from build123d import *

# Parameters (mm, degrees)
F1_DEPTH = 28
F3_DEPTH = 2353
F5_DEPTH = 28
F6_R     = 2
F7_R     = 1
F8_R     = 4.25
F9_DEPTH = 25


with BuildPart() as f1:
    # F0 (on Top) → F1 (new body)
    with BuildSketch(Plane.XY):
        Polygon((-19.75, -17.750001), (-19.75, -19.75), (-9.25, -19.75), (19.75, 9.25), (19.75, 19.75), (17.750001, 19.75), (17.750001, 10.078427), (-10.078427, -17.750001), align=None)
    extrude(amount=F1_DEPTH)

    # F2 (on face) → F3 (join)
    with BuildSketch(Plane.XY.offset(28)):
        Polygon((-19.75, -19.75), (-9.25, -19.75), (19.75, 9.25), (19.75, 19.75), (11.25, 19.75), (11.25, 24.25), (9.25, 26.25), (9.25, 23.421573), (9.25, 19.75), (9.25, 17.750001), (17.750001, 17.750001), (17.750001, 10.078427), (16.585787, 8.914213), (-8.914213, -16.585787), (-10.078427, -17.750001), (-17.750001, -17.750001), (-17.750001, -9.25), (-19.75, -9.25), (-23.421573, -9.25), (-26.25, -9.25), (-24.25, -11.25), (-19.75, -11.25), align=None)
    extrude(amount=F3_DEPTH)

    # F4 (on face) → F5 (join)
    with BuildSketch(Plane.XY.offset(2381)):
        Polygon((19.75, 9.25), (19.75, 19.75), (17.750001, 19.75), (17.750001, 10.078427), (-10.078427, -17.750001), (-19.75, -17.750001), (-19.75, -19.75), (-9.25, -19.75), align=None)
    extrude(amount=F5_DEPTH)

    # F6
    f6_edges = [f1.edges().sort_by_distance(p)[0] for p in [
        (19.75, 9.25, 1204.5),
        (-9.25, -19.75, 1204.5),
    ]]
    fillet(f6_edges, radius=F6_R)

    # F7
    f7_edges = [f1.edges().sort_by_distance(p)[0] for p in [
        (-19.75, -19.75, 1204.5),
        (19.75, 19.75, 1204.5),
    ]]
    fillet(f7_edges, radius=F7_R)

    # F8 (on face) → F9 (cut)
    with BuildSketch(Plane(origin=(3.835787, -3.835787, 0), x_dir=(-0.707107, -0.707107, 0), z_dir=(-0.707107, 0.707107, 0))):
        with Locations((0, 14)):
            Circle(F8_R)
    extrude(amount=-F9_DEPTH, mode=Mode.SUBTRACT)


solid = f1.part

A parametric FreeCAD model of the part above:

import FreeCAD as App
import Part
import Sketcher

V = App.Vector
Q = App.Units.Quantity


def edges_at(feature, points):
    """Names of the edges that pass closest to the given points."""
    edges = feature.Shape.Edges
    near = lambda p: min(range(len(edges)), key=lambda i: edges[i].distToShape(Part.Vertex(*p))[0])
    return sorted({f"Edge{near(p) + 1}" for p in points})

doc = App.newDocument("Part")
params = doc.addObject("Spreadsheet::Sheet", "Params")
for row, (alias, value) in enumerate([
    ("sketch1_width", "1.999999 mm"),
    ("sketch1_width2", "10.5 mm"),
    ("pad1_length", "28 mm"),
    ("sketch2_width", "10.5 mm"),
    ("sketch2_width2", "8.5 mm"),
    ("sketch2_width3", "4.5 mm"),
    ("pad2_length", "2353 mm"),
    ("sketch3_width", "1.999999 mm"),
    ("sketch3_width2", "10.5 mm"),
    ("pad3_length", "28 mm"),
    ("fillet_radius", "2 mm"),
    ("fillet2_radius", "1 mm"),
    ("sketch4_diameter", "8.5 mm"),
    ("pocket1_length", "25 mm"),
], start=1):
    params.set(f"A{row}", alias)
    params.set(f"B{row}", "=" + value)
    params.setAlias(f"B{row}", alias)

body = doc.addObject("PartDesign::Body", "Body")

# Sketch on XY plane
sketch1 = doc.addObject("Sketcher::SketchObject", "Sketch")
body.addObject(sketch1)
sketch1.AttachmentSupport = (doc.XY_Plane, [""])
sketch1.MapMode = "FlatFace"
sketch1.addGeometry(Part.LineSegment(V(-19.8, -17.8, 0), V(-19.8, -19.8, 0)), False)
sketch1.addGeometry(Part.LineSegment(V(-19.8, -19.8, 0), V(-9.2, -19.8, 0)), False)
sketch1.addGeometry(Part.LineSegment(V(-9.2, -19.8, 0), V(19.8, 9.2, 0)), False)
sketch1.addGeometry(Part.LineSegment(V(19.8, 9.2, 0), V(19.8, 19.8, 0)), False)
sketch1.addGeometry(Part.LineSegment(V(19.8, 19.8, 0), V(17.8, 19.8, 0)), False)
sketch1.addGeometry(Part.LineSegment(V(17.8, 19.8, 0), V(17.8, 10.1, 0)), False)
sketch1.addGeometry(Part.LineSegment(V(17.8, 10.1, 0), V(-10.1, -17.8, 0)), False)
sketch1.addGeometry(Part.LineSegment(V(-10.1, -17.8, 0), V(-19.8, -17.8, 0)), False)
sketch1.addConstraint(Sketcher.Constraint("Coincident", 0, 2, 1, 1))
sketch1.addConstraint(Sketcher.Constraint("Coincident", 1, 2, 2, 1))
sketch1.addConstraint(Sketcher.Constraint("Coincident", 2, 2, 3, 1))
sketch1.addConstraint(Sketcher.Constraint("Coincident", 3, 2, 4, 1))
sketch1.addConstraint(Sketcher.Constraint("Coincident", 4, 2, 5, 1))
sketch1.addConstraint(Sketcher.Constraint("Coincident", 5, 2, 6, 1))
sketch1.addConstraint(Sketcher.Constraint("Coincident", 6, 2, 7, 1))
sketch1.addConstraint(Sketcher.Constraint("Coincident", 7, 2, 0, 1))
sketch1.addConstraint(Sketcher.Constraint("Vertical", 0))
sketch1.addConstraint(Sketcher.Constraint("Horizontal", 1))
sketch1.addConstraint(Sketcher.Constraint("Vertical", 3))
sketch1.addConstraint(Sketcher.Constraint("Horizontal", 4))
sketch1.addConstraint(Sketcher.Constraint("Vertical", 5))
sketch1.addConstraint(Sketcher.Constraint("Horizontal", 7))
sketch1.addConstraint(Sketcher.Constraint("Symmetric", 0, 2, 3, 2, -1, 1))
sketch1.addConstraint(Sketcher.Constraint("Parallel", 2, 6))
sketch1.addConstraint(Sketcher.Constraint("Equal", 4, 0))
sketch1.addConstraint(Sketcher.Constraint("Equal", 1, 3))
sketch1.addConstraint(Sketcher.Constraint("Equal", 7, 5))
sketch1.addConstraint(Sketcher.Constraint("DistanceX", 4, 2, 4, 1, Q("1.999999 mm")))
sketch1.addConstraint(Sketcher.Constraint("DistanceX", 1, 1, 1, 2, Q("10.5 mm")))
sketch1.addConstraint(Sketcher.Constraint("DistanceX", 1, 2, 2, 2, Q("29 mm")))
sketch1.addConstraint(Sketcher.Constraint("Distance", 6, Q("39.35534 mm")))
sketch1.setExpression("Constraints[19]", "Params.sketch1_width")
sketch1.setExpression("Constraints[20]", "Params.sketch1_width2")
pad1 = doc.addObject("PartDesign::Pad", "Pad")
body.addObject(pad1)
pad1.Profile = sketch1
pad1.setExpression("Length", "Params.pad1_length")

# Sketch on XY plane
sketch2 = doc.addObject("Sketcher::SketchObject", "Sketch001")
body.addObject(sketch2)
sketch2.AttachmentSupport = (doc.XY_Plane, [""])
sketch2.MapMode = "FlatFace"
sketch2.AttachmentOffset = App.Placement(V(0, 0, 28), App.Rotation())
sketch2.addGeometry(Part.LineSegment(V(-19.8, -19.8, 0), V(-9.2, -19.8, 0)), False)
sketch2.addGeometry(Part.LineSegment(V(-9.2, -19.8, 0), V(19.8, 9.2, 0)), False)
sketch2.addGeometry(Part.LineSegment(V(19.8, 9.2, 0), V(19.8, 19.8, 0)), False)
sketch2.addGeometry(Part.LineSegment(V(19.8, 19.8, 0), V(11.2, 19.8, 0)), False)
sketch2.addGeometry(Part.LineSegment(V(11.2, 19.8, 0), V(11.2, 24.2, 0)), False)
sketch2.addGeometry(Part.LineSegment(V(11.2, 24.2, 0), V(9.2, 26.2, 0)), False)
sketch2.addGeometry(Part.LineSegment(V(9.2, 26.2, 0), V(9.2, 17.8, 0)), False)
sketch2.addGeometry(Part.LineSegment(V(9.2, 17.8, 0), V(17.8, 17.8, 0)), False)
sketch2.addGeometry(Part.LineSegment(V(17.8, 17.8, 0), V(17.8, 10.1, 0)), False)
sketch2.addGeometry(Part.LineSegment(V(17.8, 10.1, 0), V(-10.1, -17.8, 0)), False)
sketch2.addGeometry(Part.LineSegment(V(-10.1, -17.8, 0), V(-17.8, -17.8, 0)), False)
sketch2.addGeometry(Part.LineSegment(V(-17.8, -17.8, 0), V(-17.8, -9.2, 0)), False)
sketch2.addGeometry(Part.LineSegment(V(-17.8, -9.2, 0), V(-26.2, -9.2, 0)), False)
sketch2.addGeometry(Part.LineSegment(V(-26.2, -9.2, 0), V(-24.2, -11.2, 0)), False)
sketch2.addGeometry(Part.LineSegment(V(-24.2, -11.2, 0), V(-19.8, -11.2, 0)), False)
sketch2.addGeometry(Part.LineSegment(V(-19.8, -11.2, 0), V(-19.8, -19.8, 0)), False)
sketch2.addConstraint(Sketcher.Constraint("Coincident", 0, 2, 1, 1))
sketch2.addConstraint(Sketcher.Constraint("Coincident", 1, 2, 2, 1))
sketch2.addConstraint(Sketcher.Constraint("Coincident", 2, 2, 3, 1))
sketch2.addConstraint(Sketcher.Constraint("Coincident", 3, 2, 4, 1))
sketch2.addConstraint(Sketcher.Constraint("Coincident", 4, 2, 5, 1))
sketch2.addConstraint(Sketcher.Constraint("Coincident", 5, 2, 6, 1))
sketch2.addConstraint(Sketcher.Constraint("Coincident", 6, 2, 7, 1))
sketch2.addConstraint(Sketcher.Constraint("Coincident", 7, 2, 8, 1))
sketch2.addConstraint(Sketcher.Constraint("Coincident", 8, 2, 9, 1))
sketch2.addConstraint(Sketcher.Constraint("Coincident", 9, 2, 10, 1))
sketch2.addConstraint(Sketcher.Constraint("Coincident", 10, 2, 11, 1))
sketch2.addConstraint(Sketcher.Constraint("Coincident", 11, 2, 12, 1))
sketch2.addConstraint(Sketcher.Constraint("Coincident", 12, 2, 13, 1))
sketch2.addConstraint(Sketcher.Constraint("Coincident", 13, 2, 14, 1))
sketch2.addConstraint(Sketcher.Constraint("Coincident", 14, 2, 15, 1))
sketch2.addConstraint(Sketcher.Constraint("Coincident", 15, 2, 0, 1))
sketch2.addConstraint(Sketcher.Constraint("Horizontal", 0))
sketch2.addConstraint(Sketcher.Constraint("Vertical", 2))
sketch2.addConstraint(Sketcher.Constraint("Horizontal", 3))
sketch2.addConstraint(Sketcher.Constraint("Vertical", 4))
sketch2.addConstraint(Sketcher.Constraint("Vertical", 6))
sketch2.addConstraint(Sketcher.Constraint("Horizontal", 7))
sketch2.addConstraint(Sketcher.Constraint("Vertical", 8))
sketch2.addConstraint(Sketcher.Constraint("Horizontal", 10))
sketch2.addConstraint(Sketcher.Constraint("Vertical", 11))
sketch2.addConstraint(Sketcher.Constraint("Horizontal", 12))
sketch2.addConstraint(Sketcher.Constraint("Horizontal", 14))
sketch2.addConstraint(Sketcher.Constraint("Vertical", 15))
sketch2.addConstraint(Sketcher.Constraint("Symmetric", 7, 2, 10, 2, -1, 1))
sketch2.addConstraint(Sketcher.Constraint("Symmetric", 2, 2, 15, 2, -1, 1))
sketch2.addConstraint(Sketcher.Constraint("Perpendicular", 1, 5))
sketch2.addConstraint(Sketcher.Constraint("Perpendicular", 5, 9))
sketch2.addConstraint(Sketcher.Constraint("Perpendicular", 9, 13))
sketch2.addConstraint(Sketcher.Constraint("Equal", 3, 7))
sketch2.addConstraint(Sketcher.Constraint("Equal", 3, 12))
sketch2.addConstraint(Sketcher.Constraint("Equal", 0, 2))
sketch2.addConstraint(Sketcher.Constraint("Equal", 14, 4))
sketch2.addConstraint(Sketcher.Constraint("Equal", 12, 6))
sketch2.addConstraint(Sketcher.Constraint("Equal", 10, 8))
sketch2.addConstraint(Sketcher.Constraint("Equal", 7, 11))
sketch2.addConstraint(Sketcher.Constraint("Equal", 11, 15))
sketch2.addConstraint(Sketcher.Constraint("DistanceX", 0, 1, 0, 2, Q("10.5 mm")))
sketch2.addConstraint(Sketcher.Constraint("DistanceX", 3, 2, 3, 1, Q("8.5 mm")))
sketch2.addConstraint(Sketcher.Constraint("DistanceX", 14, 1, 14, 2, Q("4.5 mm")))
sketch2.addConstraint(Sketcher.Constraint("DistanceX", 0, 2, 1, 2, Q("29 mm")))
sketch2.addConstraint(Sketcher.Constraint("Distance", 9, Q("39.35534 mm")))
sketch2.setExpression("Constraints[41]", "Params.sketch2_width")
sketch2.setExpression("Constraints[42]", "Params.sketch2_width2")
sketch2.setExpression("Constraints[43]", "Params.sketch2_width3")
pad2 = doc.addObject("PartDesign::Pad", "Pad001")
body.addObject(pad2)
pad2.Profile = sketch2
pad2.setExpression("Length", "Params.pad2_length")

# Sketch on XY plane
sketch3 = doc.addObject("Sketcher::SketchObject", "Sketch002")
body.addObject(sketch3)
sketch3.AttachmentSupport = (doc.XY_Plane, [""])
sketch3.MapMode = "FlatFace"
sketch3.AttachmentOffset = App.Placement(V(0, 0, 2381), App.Rotation())
sketch3.addGeometry(Part.LineSegment(V(19.8, 9.2, 0), V(19.8, 19.8, 0)), False)
sketch3.addGeometry(Part.LineSegment(V(19.8, 19.8, 0), V(17.8, 19.8, 0)), False)
sketch3.addGeometry(Part.LineSegment(V(17.8, 19.8, 0), V(17.8, 10.1, 0)), False)
sketch3.addGeometry(Part.LineSegment(V(17.8, 10.1, 0), V(-10.1, -17.8, 0)), False)
sketch3.addGeometry(Part.LineSegment(V(-10.1, -17.8, 0), V(-19.8, -17.8, 0)), False)
sketch3.addGeometry(Part.LineSegment(V(-19.8, -17.8, 0), V(-19.8, -19.8, 0)), False)
sketch3.addGeometry(Part.LineSegment(V(-19.8, -19.8, 0), V(-9.2, -19.8, 0)), False)
sketch3.addGeometry(Part.LineSegment(V(-9.2, -19.8, 0), V(19.8, 9.2, 0)), False)
sketch3.addConstraint(Sketcher.Constraint("Coincident", 0, 2, 1, 1))
sketch3.addConstraint(Sketcher.Constraint("Coincident", 1, 2, 2, 1))
sketch3.addConstraint(Sketcher.Constraint("Coincident", 2, 2, 3, 1))
sketch3.addConstraint(Sketcher.Constraint("Coincident", 3, 2, 4, 1))
sketch3.addConstraint(Sketcher.Constraint("Coincident", 4, 2, 5, 1))
sketch3.addConstraint(Sketcher.Constraint("Coincident", 5, 2, 6, 1))
sketch3.addConstraint(Sketcher.Constraint("Coincident", 6, 2, 7, 1))
sketch3.addConstraint(Sketcher.Constraint("Coincident", 7, 2, 0, 1))
sketch3.addConstraint(Sketcher.Constraint("Vertical", 0))
sketch3.addConstraint(Sketcher.Constraint("Horizontal", 1))
sketch3.addConstraint(Sketcher.Constraint("Vertical", 2))
sketch3.addConstraint(Sketcher.Constraint("Horizontal", 4))
sketch3.addConstraint(Sketcher.Constraint("Vertical", 5))
sketch3.addConstraint(Sketcher.Constraint("Horizontal", 6))
sketch3.addConstraint(Sketcher.Constraint("Symmetric", 0, 2, 5, 2, -1, 1))
sketch3.addConstraint(Sketcher.Constraint("Parallel", 3, 7))
sketch3.addConstraint(Sketcher.Constraint("Equal", 6, 0))
sketch3.addConstraint(Sketcher.Constraint("Equal", 4, 2))
sketch3.addConstraint(Sketcher.Constraint("Equal", 1, 5))
sketch3.addConstraint(Sketcher.Constraint("DistanceX", 1, 2, 1, 1, Q("1.999999 mm")))
sketch3.addConstraint(Sketcher.Constraint("DistanceX", 6, 1, 6, 2, Q("10.5 mm")))
sketch3.addConstraint(Sketcher.Constraint("DistanceX", 6, 2, 2, 2, Q("27.000001 mm")))
sketch3.addConstraint(Sketcher.Constraint("Distance", 3, Q("39.35534 mm")))
sketch3.setExpression("Constraints[19]", "Params.sketch3_width")
sketch3.setExpression("Constraints[20]", "Params.sketch3_width2")
pad3 = doc.addObject("PartDesign::Pad", "Pad002")
body.addObject(pad3)
pad3.Profile = sketch3
pad3.setExpression("Length", "Params.pad3_length")
doc.recompute()

fillet = doc.addObject("PartDesign::Fillet", "Fillet")
body.addObject(fillet)
fillet.Base = (pad3, edges_at(pad3, [(19.75, 9.25, 1204.5), (-9.25, -19.75, 1204.5)]))
fillet.setExpression("Radius", "Params.fillet_radius")
doc.recompute()

fillet2 = doc.addObject("PartDesign::Fillet", "Fillet001")
body.addObject(fillet2)
fillet2.Base = (fillet, edges_at(fillet, [(-19.75, -19.75, 1204.5), (19.75, 19.75, 1204.5)]))
fillet2.setExpression("Radius", "Params.fillet2_radius")

# Sketch on an angled plane
sketch4 = doc.addObject("Sketcher::SketchObject", "Sketch003")
body.addObject(sketch4)
sketch4.Placement = App.Placement(V(3.835787, -3.835787, 0), App.Rotation(V(-0.707106781, -0.707106781, 0), V(0, 0, 0.999999999), V(-0.707106781, 0.707106781, 0), "ZXY"))
sketch4.addGeometry(Part.Circle(V(0, 14, 0), V(0, 0, 1), 4.2), False)
sketch4.addConstraint(Sketcher.Constraint("PointOnObject", 0, 3, -2))
sketch4.addConstraint(Sketcher.Constraint("Diameter", 0, Q("8.5 mm")))
sketch4.addConstraint(Sketcher.Constraint("DistanceY", -1, 1, 0, 3, Q("14 mm")))
sketch4.setExpression("Constraints[1]", "Params.sketch4_diameter")
pocket1 = doc.addObject("PartDesign::Pocket", "Pocket")
body.addObject(pocket1)
pocket1.Profile = sketch4
pocket1.setExpression("Length", "Params.pocket1_length")

doc.recompute()
